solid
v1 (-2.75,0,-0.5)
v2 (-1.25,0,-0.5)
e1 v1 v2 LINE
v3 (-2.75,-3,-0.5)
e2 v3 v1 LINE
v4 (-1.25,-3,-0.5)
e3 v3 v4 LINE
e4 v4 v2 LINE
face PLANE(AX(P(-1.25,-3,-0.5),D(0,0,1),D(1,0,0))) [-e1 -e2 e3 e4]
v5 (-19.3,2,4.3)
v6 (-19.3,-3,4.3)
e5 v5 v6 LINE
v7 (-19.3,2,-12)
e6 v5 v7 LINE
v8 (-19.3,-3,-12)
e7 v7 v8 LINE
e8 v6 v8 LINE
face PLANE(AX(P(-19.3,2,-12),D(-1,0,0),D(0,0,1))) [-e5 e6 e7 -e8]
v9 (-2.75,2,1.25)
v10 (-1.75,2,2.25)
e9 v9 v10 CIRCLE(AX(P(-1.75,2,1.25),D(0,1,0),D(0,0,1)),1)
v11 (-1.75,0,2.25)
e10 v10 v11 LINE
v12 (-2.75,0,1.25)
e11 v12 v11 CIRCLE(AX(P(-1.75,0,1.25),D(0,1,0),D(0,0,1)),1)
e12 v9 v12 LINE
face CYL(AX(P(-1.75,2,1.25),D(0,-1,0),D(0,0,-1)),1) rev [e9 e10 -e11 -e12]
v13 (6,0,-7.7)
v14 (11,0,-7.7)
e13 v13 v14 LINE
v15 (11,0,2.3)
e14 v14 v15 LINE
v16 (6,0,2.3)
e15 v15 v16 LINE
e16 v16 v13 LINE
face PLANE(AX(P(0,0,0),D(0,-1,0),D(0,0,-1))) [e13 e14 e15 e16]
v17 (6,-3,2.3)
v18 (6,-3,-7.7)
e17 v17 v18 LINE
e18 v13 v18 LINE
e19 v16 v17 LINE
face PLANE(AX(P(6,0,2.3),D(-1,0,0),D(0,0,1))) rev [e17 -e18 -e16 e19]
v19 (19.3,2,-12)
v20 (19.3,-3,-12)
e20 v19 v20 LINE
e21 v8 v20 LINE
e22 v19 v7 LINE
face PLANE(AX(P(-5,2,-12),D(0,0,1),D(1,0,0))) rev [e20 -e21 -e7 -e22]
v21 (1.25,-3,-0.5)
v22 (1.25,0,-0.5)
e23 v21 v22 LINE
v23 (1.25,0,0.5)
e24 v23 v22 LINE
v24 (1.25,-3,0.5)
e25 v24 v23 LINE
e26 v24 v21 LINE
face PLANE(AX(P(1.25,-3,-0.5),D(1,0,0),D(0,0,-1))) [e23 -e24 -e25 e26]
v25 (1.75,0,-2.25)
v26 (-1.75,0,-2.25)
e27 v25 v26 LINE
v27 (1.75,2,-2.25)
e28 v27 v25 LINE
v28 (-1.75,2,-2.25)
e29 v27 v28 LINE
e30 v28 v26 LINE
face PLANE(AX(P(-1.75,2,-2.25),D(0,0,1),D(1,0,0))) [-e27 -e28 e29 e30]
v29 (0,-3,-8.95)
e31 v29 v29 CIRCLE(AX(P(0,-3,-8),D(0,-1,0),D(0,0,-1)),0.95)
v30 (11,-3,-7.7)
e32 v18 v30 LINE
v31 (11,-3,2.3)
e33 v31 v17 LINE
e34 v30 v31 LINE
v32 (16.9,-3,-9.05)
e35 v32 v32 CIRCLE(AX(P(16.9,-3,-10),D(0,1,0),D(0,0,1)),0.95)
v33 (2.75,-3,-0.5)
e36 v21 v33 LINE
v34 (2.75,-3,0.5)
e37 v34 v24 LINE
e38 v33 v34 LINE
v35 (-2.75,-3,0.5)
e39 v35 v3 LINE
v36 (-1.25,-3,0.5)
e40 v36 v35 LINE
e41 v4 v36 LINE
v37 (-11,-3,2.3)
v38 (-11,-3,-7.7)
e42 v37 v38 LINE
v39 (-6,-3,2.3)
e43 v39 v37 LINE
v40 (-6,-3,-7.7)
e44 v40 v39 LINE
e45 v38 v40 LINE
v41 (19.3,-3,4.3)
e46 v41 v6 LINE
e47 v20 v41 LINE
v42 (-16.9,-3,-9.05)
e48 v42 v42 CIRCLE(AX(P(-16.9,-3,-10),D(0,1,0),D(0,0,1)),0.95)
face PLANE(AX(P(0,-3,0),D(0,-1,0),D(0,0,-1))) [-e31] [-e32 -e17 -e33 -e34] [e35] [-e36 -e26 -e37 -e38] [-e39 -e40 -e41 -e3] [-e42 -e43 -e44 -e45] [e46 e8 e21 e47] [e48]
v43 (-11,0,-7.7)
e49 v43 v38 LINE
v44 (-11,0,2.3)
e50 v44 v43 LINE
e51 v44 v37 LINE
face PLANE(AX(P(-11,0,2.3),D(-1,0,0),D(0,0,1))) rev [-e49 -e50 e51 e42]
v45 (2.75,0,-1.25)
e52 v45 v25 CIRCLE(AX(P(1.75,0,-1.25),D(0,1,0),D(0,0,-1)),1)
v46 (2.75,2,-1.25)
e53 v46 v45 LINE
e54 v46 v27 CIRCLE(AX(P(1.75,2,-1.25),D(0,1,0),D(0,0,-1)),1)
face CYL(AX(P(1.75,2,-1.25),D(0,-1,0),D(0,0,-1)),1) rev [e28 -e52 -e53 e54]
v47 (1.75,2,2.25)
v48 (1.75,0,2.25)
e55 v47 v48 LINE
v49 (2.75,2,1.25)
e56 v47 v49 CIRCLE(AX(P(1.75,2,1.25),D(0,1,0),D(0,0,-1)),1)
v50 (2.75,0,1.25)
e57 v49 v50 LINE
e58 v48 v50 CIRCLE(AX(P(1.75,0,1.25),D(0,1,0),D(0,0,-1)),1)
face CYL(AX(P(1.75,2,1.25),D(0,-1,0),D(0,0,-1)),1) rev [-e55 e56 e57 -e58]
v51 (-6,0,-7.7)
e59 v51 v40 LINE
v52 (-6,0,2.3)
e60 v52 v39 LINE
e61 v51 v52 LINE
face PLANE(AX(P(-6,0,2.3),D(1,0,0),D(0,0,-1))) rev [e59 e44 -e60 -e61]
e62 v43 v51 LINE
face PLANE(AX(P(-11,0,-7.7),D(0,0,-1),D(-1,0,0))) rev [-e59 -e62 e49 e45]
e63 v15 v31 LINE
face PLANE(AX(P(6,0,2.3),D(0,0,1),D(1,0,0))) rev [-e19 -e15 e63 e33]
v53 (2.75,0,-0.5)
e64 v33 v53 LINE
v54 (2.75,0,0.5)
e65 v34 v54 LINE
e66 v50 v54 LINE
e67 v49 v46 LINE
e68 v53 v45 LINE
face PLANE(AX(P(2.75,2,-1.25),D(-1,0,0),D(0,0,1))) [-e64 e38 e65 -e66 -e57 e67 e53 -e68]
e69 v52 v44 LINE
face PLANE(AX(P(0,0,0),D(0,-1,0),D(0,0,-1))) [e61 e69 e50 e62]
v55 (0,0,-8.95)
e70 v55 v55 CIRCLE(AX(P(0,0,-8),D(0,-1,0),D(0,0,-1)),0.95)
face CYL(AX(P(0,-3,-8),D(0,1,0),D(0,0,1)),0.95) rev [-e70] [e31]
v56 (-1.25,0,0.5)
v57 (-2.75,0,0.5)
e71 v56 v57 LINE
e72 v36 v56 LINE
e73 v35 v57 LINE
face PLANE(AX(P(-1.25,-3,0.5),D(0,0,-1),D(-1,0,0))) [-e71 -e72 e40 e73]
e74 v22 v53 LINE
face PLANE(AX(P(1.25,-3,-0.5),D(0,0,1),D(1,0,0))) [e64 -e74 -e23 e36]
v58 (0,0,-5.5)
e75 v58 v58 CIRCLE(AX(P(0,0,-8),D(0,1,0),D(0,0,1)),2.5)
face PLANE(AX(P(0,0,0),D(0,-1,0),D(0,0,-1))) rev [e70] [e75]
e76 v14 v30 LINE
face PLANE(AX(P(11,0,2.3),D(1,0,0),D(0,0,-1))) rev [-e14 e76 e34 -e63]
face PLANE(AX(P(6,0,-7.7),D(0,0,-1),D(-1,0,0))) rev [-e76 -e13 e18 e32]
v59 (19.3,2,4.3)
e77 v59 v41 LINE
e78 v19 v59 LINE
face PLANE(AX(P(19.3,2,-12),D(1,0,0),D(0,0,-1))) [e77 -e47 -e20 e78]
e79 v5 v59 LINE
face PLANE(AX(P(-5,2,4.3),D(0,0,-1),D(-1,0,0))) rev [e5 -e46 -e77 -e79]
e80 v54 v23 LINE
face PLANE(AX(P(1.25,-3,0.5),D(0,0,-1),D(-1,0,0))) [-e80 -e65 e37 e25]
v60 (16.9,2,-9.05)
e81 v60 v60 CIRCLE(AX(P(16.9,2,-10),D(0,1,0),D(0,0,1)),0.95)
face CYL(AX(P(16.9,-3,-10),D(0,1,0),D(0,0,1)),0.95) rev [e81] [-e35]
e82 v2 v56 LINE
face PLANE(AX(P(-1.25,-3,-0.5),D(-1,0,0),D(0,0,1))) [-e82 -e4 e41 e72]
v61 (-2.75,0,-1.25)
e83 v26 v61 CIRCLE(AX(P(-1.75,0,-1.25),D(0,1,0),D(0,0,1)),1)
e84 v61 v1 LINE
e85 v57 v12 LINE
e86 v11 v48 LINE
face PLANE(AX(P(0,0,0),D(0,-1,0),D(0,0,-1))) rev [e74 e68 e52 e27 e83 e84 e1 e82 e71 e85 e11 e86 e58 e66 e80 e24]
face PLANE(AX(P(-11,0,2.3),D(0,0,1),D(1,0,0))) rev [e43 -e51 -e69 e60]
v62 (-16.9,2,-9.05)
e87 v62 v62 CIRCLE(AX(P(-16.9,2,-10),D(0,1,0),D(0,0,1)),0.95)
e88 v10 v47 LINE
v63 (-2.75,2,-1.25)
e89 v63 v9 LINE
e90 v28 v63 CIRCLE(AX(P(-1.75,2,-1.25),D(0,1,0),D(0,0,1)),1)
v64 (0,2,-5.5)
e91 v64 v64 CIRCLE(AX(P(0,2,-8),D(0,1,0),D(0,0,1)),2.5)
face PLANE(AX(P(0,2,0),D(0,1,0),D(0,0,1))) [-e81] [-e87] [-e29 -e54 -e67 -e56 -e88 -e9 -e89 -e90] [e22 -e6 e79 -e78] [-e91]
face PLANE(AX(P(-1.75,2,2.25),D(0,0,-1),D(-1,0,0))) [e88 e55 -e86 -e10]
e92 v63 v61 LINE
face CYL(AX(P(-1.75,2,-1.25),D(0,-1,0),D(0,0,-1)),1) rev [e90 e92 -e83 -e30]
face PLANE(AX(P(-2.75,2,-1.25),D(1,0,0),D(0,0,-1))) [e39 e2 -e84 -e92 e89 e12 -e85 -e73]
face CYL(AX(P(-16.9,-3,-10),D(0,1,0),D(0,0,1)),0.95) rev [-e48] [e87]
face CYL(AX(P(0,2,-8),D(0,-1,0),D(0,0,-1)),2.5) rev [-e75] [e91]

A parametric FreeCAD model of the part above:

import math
import FreeCAD as App
import Part
import Sketcher


def add_polygon(sketch, points):
    """Adds a closed chain of lines whose ends are joined by coincident constraints."""
    first, n = sketch.GeometryCount, len(points)
    for a, b in zip(points, points[1:] + points[:1]):
        sketch.addGeometry(Part.LineSegment(App.Vector(*a, 0), App.Vector(*b, 0)), False)
    for i in range(n):
        sketch.addConstraint(Sketcher.Constraint("Coincident", first + i, 2, first + (i + 1) % n, 1))

doc = App.newDocument("Part")
body = doc.addObject("PartDesign::Body", "Body")

# Sketch on XZ plane
sketch1 = body.newObject("Sketcher::SketchObject", "Sketch")
sketch1.AttachmentSupport = (doc.getObject("XZ_Plane"), [""])
sketch1.MapMode = "FlatFace"
add_polygon(sketch1, [(-5, -12), (-5, 4.3), (5, 4.3), (5, -12)])  # lines 0-3
sketch1.addGeometry(Part.ArcOfCircle(Part.Circle(App.Vector(-1.75, -1.25, 0), App.Vector(0, 0, 1), 1), math.radians(-180), math.radians(-90)), False)  # 4
sketch1.addGeometry(Part.LineSegment(App.Vector(-1.75, -2.25, 0), App.Vector(1.75, -2.25, 0)), False)  # 5
sketch1.addGeometry(Part.ArcOfCircle(Part.Circle(App.Vector(1.75, -1.25, 0), App.Vector(0, 0, 1), 1), math.radians(-90), math.radians(0)), False)  # 6
sketch1.addGeometry(Part.LineSegment(App.Vector(2.75, -1.25, 0), App.Vector(2.75, 1.25, 0)), False)  # 7
sketch1.addGeometry(Part.ArcOfCircle(Part.Circle(App.Vector(1.75, 1.25, 0), App.Vector(0, 0, 1), 1), math.radians(0), math.radians(90)), False)  # 8
sketch1.addGeometry(Part.LineSegment(App.Vector(1.75, 2.25, 0), App.Vector(-1.75, 2.25, 0)), False)  # 9
sketch1.addGeometry(Part.ArcOfCircle(Part.Circle(App.Vector(-1.75, 1.25, 0), App.Vector(0, 0, 1), 1), math.radians(90), math.radians(180)), False)  # 10
sketch1.addGeometry(Part.LineSegment(App.Vector(-2.75, 1.25, 0), App.Vector(-2.75, -1.25, 0)), False)  # 11
sketch1.addGeometry(Part.Circle(App.Vector(0, -8, 0), App.Vector(0, 0, 1), 2.5), False)  # 12
sketch1.addConstraint([
    Sketcher.Constraint("Tangent", 4, 2, 5, 1),
    Sketcher.Constraint("Tangent", 5, 2, 6, 1),
    Sketcher.Constraint("Tangent", 6, 2, 7, 1),
    Sketcher.Constraint("Tangent", 7, 2, 8, 1),
    Sketcher.Constraint("Tangent", 8, 2, 9, 1),
    Sketcher.Constraint("Tangent", 9, 2, 10, 1),
    Sketcher.Constraint("Tangent", 10, 2, 11, 1),
    Sketcher.Constraint("Tangent", 11, 2, 4, 1),
    Sketcher.Constraint("Vertical", 0),
    Sketcher.Constraint("Horizontal", 1),
    Sketcher.Constraint("Vertical", 2),
    Sketcher.Constraint("Horizontal", 3),
    Sketcher.Constraint("Horizontal", 5),
    Sketcher.Constraint("Vertical", 7),
    Sketcher.Constraint("Horizontal", 9),
    Sketcher.Constraint("Vertical", 11),
    Sketcher.Constraint("Equal", 4, 6),
    Sketcher.Constraint("Equal", 6, 8),
    Sketcher.Constraint("Equal", 8, 10),
    Sketcher.Constraint("Symmetric", 4, 3, 8, 3, -1, 1),
    Sketcher.Constraint("PointOnObject", 12, 3, -2),
    Sketcher.Constraint("Diameter", 12, 5.0),
    Sketcher.Constraint("Radius", 4, 1.0),
    Sketcher.Constraint("DistanceX", 1, 1, 1, 2, 10.0),
    Sketcher.Constraint("DistanceX", 5, 1, 5, 2, 3.5),
    Sketcher.Constraint("DistanceY", 0, 1, 0, 2, 16.3),
    Sketcher.Constraint("DistanceY", 7, 1, 7, 2, 2.5),
    Sketcher.Constraint("DistanceY", 12, 3, -1, 1, 8.0),
    Sketcher.Constraint("DistanceX", 0, 2, -1, 1, 5.0),
    Sketcher.Constraint("DistanceY", 2, 2, -1, 1, 12.0),
])
pad1 = body.newObject("PartDesign::Pad", "Pad")
pad1.Profile = sketch1
pad1.Length = 2
pad1.Reversed = True

# Sketch on XZ plane
sketch2 = body.newObject("Sketcher::SketchObject", "Sketch001")
sketch2.AttachmentSupport = (doc.getObject("XZ_Plane"), [""])
sketch2.MapMode = "FlatFace"
add_polygon(sketch2, [(-5, 4.3), (-5, -12), (5, -12), (5, 4.3)])  # lines 0-3
sketch2.addGeometry(Part.Circle(App.Vector(0, -8, 0), App.Vector(0, 0, 1), 0.95), False)  # 4
add_polygon(sketch2, [(-1.25, -0.5), (-2.75, -0.5), (-2.75, 0.5), (-1.25, 0.5)])  # lines 5-8
add_polygon(sketch2, [(2.75, -0.5), (1.25, -0.5), (1.25, 0.5), (2.75, 0.5)])  # lines 9-12
sketch2.addConstraint([
    Sketcher.Constraint("Vertical", 0),
    Sketcher.Constraint("Horizontal", 1),
    Sketcher.Constraint("Vertical", 2),
    Sketcher.Constraint("Horizontal", 3),
    Sketcher.Constraint("Horizontal", 5),
    Sketcher.Constraint("Vertical", 6),
    Sketcher.Constraint("Horizontal", 7),
    Sketcher.Constraint("Vertical", 8),
    Sketcher.Constraint("Horizontal", 9),
    Sketcher.Constraint("Vertical", 10),
    Sketcher.Constraint("Horizontal", 11),
    Sketcher.Constraint("Vertical", 12),
    Sketcher.Constraint("Symmetric", 7, 2, 9, 2, -1, 1),
    Sketcher.Constraint("Symmetric", 5, 2, 11, 2, -1, 1),
    Sketcher.Constraint("PointOnObject", 4, 3, -2),
    Sketcher.Constraint("Horizontal", 8, 2, 9, 2),
    Sketcher.Constraint("Diameter", 4, 1.9),
    Sketcher.Constraint("DistanceX", 1, 1, 1, 2, 10.0),
    Sketcher.Constraint("DistanceY", 6, 1, 6, 2, 1.0),
    Sketcher.Constraint("DistanceX", 5, 2, 5, 1, 1.5),
    Sketcher.Constraint("DistanceY", 0, 2, 0, 1, 16.3),
    Sketcher.Constraint("DistanceY", 4, 3, -1, 1, 8.0),
    Sketcher.Constraint("DistanceX", 0, 2, -1, 1, 5.0),
    Sketcher.Constraint("DistanceY", 0, 2, -1, 1, 12.0),
    Sketcher.Constraint("DistanceX", 5, 2, 9, 2, 4.0),
])
pad2 = body.newObject("PartDesign::Pad", "Pad001")
pad2.Profile = sketch2
pad2.Length = 3

# Sketch on XZ plane
sketch3 = body.newObject("Sketcher::SketchObject", "Sketch002")
sketch3.AttachmentSupport = (doc.getObject("XZ_Plane"), [""])
sketch3.MapMode = "FlatFace"
sketch3.AttachmentOffset = App.Placement(App.Vector(0, 0, 3), App.Rotation())
add_polygon(sketch3, [(5, 4.3), (5, -12), (19.3, -12), (19.3, 4.3)])  # lines 0-3
add_polygon(sketch3, [(-19.3, 4.3), (-19.3, -12), (-5, -12), (-5, 4.3)])  # lines 4-7
sketch3.addConstraint([
    Sketcher.Constraint("Vertical", 0),
    Sketcher.Constraint("Horizontal", 1),
    Sketcher.Constraint("Vertical", 2),
    Sketcher.Constraint("Horizontal", 3),
    Sketcher.Constraint("Vertical", 4),
    Sketcher.Constraint("Horizontal", 5),
    Sketcher.Constraint("Vertical", 6),
    Sketcher.Constraint("Horizontal", 7),
    Sketcher.Constraint("Symmetric", 1, 2, 4, 2, -2),
    Sketcher.Constraint("Symmetric", 3, 2, 6, 2, -2),
    Sketcher.Constraint("DistanceX", 1, 1, 1, 2, 14.3),
    Sketcher.Constraint("DistanceY", 0, 2, 0, 1, 16.3),
    Sketcher.Constraint("DistanceX", -1, 1, 0, 2, 5.0),
    Sketcher.Constraint("DistanceY", 0, 2, -1, 1, 12.0),
])
pad3 = body.newObject("PartDesign::Pad", "Pad002")
pad3.Profile = sketch3
pad3.Length = 5
pad3.Reversed = True

# Sketch on XZ plane
sketch4 = body.newObject("Sketcher::SketchObject", "Sketch003")
sketch4.AttachmentSupport = (doc.getObject("XZ_Plane"), [""])
sketch4.MapMode = "FlatFace"
sketch4.AttachmentOffset = App.Placement(App.Vector(0, 0, -2), App.Rotation())
sketch4.addGeometry([
    Part.Circle(App.Vector(-16.9, -10, 0), App.Vector(0, 0, 1), 0.95),
    Part.Circle(App.Vector(16.9, -10, 0), App.Vector(0, 0, 1), 0.95),
], False)
sketch4.addConstraint([
    Sketcher.Constraint("Equal", 0, 1),
    Sketcher.Constraint("Symmetric", 0, 3, 1, 3, -2),
    Sketcher.Constraint("Diameter", 0, 1.9),
    Sketcher.Constraint("DistanceY", 0, 3, -1, 1, 10.0),
    Sketcher.Constraint("DistanceX", 0, 3, -1, 1, 16.9),
])
pocket1 = body.newObject("PartDesign::Pocket", "Pocket")
pocket1.Profile = sketch4
pocket1.Length = 5
pocket1.Reversed = True

# Sketch on XZ plane
sketch5 = body.newObject("Sketcher::SketchObject", "Sketch004")
sketch5.AttachmentSupport = (doc.getObject("XZ_Plane"), [""])
sketch5.MapMode = "FlatFace"
sketch5.AttachmentOffset = App.Placement(App.Vector(0, 0, 3), App.Rotation())
add_polygon(sketch5, [(-11, 2.3), (-11, -7.7), (-6, -7.7), (-6, 2.3)])  # lines 0-3
add_polygon(sketch5, [(6, 2.3), (6, -7.7), (11, -7.7), (11, 2.3)])  # lines 4-7
sketch5.addConstraint([
    Sketcher.Constraint("Vertical", 0),
    Sketcher.Constraint("Horizontal", 1),
    Sketcher.Constraint("Vertical", 2),
    Sketcher.Constraint("Horizontal", 3),
    Sketcher.Constraint("Vertical", 4),
    Sketcher.Constraint("Horizontal", 5),
    Sketcher.Constraint("Vertical", 6),
    Sketcher.Constraint("Horizontal", 7),
    Sketcher.Constraint("Symmetric", 1, 2, 4, 2, -2),
    Sketcher.Constraint("Symmetric", 3, 2, 6, 2, -2),
    Sketcher.Constraint("DistanceX", 1, 1, 1, 2, 5.0),
    Sketcher.Constraint("DistanceY", 0, 2, 0, 1, 10.0),
    Sketcher.Constraint("DistanceX", 0, 2, -1, 1, 11.0),
    Sketcher.Constraint("DistanceY", 0, 2, -1, 1, 7.7),
])
pocket2 = body.newObject("PartDesign::Pocket", "Pocket001")
pocket2.Profile = sketch5
pocket2.Length = 3

doc.recompute()
